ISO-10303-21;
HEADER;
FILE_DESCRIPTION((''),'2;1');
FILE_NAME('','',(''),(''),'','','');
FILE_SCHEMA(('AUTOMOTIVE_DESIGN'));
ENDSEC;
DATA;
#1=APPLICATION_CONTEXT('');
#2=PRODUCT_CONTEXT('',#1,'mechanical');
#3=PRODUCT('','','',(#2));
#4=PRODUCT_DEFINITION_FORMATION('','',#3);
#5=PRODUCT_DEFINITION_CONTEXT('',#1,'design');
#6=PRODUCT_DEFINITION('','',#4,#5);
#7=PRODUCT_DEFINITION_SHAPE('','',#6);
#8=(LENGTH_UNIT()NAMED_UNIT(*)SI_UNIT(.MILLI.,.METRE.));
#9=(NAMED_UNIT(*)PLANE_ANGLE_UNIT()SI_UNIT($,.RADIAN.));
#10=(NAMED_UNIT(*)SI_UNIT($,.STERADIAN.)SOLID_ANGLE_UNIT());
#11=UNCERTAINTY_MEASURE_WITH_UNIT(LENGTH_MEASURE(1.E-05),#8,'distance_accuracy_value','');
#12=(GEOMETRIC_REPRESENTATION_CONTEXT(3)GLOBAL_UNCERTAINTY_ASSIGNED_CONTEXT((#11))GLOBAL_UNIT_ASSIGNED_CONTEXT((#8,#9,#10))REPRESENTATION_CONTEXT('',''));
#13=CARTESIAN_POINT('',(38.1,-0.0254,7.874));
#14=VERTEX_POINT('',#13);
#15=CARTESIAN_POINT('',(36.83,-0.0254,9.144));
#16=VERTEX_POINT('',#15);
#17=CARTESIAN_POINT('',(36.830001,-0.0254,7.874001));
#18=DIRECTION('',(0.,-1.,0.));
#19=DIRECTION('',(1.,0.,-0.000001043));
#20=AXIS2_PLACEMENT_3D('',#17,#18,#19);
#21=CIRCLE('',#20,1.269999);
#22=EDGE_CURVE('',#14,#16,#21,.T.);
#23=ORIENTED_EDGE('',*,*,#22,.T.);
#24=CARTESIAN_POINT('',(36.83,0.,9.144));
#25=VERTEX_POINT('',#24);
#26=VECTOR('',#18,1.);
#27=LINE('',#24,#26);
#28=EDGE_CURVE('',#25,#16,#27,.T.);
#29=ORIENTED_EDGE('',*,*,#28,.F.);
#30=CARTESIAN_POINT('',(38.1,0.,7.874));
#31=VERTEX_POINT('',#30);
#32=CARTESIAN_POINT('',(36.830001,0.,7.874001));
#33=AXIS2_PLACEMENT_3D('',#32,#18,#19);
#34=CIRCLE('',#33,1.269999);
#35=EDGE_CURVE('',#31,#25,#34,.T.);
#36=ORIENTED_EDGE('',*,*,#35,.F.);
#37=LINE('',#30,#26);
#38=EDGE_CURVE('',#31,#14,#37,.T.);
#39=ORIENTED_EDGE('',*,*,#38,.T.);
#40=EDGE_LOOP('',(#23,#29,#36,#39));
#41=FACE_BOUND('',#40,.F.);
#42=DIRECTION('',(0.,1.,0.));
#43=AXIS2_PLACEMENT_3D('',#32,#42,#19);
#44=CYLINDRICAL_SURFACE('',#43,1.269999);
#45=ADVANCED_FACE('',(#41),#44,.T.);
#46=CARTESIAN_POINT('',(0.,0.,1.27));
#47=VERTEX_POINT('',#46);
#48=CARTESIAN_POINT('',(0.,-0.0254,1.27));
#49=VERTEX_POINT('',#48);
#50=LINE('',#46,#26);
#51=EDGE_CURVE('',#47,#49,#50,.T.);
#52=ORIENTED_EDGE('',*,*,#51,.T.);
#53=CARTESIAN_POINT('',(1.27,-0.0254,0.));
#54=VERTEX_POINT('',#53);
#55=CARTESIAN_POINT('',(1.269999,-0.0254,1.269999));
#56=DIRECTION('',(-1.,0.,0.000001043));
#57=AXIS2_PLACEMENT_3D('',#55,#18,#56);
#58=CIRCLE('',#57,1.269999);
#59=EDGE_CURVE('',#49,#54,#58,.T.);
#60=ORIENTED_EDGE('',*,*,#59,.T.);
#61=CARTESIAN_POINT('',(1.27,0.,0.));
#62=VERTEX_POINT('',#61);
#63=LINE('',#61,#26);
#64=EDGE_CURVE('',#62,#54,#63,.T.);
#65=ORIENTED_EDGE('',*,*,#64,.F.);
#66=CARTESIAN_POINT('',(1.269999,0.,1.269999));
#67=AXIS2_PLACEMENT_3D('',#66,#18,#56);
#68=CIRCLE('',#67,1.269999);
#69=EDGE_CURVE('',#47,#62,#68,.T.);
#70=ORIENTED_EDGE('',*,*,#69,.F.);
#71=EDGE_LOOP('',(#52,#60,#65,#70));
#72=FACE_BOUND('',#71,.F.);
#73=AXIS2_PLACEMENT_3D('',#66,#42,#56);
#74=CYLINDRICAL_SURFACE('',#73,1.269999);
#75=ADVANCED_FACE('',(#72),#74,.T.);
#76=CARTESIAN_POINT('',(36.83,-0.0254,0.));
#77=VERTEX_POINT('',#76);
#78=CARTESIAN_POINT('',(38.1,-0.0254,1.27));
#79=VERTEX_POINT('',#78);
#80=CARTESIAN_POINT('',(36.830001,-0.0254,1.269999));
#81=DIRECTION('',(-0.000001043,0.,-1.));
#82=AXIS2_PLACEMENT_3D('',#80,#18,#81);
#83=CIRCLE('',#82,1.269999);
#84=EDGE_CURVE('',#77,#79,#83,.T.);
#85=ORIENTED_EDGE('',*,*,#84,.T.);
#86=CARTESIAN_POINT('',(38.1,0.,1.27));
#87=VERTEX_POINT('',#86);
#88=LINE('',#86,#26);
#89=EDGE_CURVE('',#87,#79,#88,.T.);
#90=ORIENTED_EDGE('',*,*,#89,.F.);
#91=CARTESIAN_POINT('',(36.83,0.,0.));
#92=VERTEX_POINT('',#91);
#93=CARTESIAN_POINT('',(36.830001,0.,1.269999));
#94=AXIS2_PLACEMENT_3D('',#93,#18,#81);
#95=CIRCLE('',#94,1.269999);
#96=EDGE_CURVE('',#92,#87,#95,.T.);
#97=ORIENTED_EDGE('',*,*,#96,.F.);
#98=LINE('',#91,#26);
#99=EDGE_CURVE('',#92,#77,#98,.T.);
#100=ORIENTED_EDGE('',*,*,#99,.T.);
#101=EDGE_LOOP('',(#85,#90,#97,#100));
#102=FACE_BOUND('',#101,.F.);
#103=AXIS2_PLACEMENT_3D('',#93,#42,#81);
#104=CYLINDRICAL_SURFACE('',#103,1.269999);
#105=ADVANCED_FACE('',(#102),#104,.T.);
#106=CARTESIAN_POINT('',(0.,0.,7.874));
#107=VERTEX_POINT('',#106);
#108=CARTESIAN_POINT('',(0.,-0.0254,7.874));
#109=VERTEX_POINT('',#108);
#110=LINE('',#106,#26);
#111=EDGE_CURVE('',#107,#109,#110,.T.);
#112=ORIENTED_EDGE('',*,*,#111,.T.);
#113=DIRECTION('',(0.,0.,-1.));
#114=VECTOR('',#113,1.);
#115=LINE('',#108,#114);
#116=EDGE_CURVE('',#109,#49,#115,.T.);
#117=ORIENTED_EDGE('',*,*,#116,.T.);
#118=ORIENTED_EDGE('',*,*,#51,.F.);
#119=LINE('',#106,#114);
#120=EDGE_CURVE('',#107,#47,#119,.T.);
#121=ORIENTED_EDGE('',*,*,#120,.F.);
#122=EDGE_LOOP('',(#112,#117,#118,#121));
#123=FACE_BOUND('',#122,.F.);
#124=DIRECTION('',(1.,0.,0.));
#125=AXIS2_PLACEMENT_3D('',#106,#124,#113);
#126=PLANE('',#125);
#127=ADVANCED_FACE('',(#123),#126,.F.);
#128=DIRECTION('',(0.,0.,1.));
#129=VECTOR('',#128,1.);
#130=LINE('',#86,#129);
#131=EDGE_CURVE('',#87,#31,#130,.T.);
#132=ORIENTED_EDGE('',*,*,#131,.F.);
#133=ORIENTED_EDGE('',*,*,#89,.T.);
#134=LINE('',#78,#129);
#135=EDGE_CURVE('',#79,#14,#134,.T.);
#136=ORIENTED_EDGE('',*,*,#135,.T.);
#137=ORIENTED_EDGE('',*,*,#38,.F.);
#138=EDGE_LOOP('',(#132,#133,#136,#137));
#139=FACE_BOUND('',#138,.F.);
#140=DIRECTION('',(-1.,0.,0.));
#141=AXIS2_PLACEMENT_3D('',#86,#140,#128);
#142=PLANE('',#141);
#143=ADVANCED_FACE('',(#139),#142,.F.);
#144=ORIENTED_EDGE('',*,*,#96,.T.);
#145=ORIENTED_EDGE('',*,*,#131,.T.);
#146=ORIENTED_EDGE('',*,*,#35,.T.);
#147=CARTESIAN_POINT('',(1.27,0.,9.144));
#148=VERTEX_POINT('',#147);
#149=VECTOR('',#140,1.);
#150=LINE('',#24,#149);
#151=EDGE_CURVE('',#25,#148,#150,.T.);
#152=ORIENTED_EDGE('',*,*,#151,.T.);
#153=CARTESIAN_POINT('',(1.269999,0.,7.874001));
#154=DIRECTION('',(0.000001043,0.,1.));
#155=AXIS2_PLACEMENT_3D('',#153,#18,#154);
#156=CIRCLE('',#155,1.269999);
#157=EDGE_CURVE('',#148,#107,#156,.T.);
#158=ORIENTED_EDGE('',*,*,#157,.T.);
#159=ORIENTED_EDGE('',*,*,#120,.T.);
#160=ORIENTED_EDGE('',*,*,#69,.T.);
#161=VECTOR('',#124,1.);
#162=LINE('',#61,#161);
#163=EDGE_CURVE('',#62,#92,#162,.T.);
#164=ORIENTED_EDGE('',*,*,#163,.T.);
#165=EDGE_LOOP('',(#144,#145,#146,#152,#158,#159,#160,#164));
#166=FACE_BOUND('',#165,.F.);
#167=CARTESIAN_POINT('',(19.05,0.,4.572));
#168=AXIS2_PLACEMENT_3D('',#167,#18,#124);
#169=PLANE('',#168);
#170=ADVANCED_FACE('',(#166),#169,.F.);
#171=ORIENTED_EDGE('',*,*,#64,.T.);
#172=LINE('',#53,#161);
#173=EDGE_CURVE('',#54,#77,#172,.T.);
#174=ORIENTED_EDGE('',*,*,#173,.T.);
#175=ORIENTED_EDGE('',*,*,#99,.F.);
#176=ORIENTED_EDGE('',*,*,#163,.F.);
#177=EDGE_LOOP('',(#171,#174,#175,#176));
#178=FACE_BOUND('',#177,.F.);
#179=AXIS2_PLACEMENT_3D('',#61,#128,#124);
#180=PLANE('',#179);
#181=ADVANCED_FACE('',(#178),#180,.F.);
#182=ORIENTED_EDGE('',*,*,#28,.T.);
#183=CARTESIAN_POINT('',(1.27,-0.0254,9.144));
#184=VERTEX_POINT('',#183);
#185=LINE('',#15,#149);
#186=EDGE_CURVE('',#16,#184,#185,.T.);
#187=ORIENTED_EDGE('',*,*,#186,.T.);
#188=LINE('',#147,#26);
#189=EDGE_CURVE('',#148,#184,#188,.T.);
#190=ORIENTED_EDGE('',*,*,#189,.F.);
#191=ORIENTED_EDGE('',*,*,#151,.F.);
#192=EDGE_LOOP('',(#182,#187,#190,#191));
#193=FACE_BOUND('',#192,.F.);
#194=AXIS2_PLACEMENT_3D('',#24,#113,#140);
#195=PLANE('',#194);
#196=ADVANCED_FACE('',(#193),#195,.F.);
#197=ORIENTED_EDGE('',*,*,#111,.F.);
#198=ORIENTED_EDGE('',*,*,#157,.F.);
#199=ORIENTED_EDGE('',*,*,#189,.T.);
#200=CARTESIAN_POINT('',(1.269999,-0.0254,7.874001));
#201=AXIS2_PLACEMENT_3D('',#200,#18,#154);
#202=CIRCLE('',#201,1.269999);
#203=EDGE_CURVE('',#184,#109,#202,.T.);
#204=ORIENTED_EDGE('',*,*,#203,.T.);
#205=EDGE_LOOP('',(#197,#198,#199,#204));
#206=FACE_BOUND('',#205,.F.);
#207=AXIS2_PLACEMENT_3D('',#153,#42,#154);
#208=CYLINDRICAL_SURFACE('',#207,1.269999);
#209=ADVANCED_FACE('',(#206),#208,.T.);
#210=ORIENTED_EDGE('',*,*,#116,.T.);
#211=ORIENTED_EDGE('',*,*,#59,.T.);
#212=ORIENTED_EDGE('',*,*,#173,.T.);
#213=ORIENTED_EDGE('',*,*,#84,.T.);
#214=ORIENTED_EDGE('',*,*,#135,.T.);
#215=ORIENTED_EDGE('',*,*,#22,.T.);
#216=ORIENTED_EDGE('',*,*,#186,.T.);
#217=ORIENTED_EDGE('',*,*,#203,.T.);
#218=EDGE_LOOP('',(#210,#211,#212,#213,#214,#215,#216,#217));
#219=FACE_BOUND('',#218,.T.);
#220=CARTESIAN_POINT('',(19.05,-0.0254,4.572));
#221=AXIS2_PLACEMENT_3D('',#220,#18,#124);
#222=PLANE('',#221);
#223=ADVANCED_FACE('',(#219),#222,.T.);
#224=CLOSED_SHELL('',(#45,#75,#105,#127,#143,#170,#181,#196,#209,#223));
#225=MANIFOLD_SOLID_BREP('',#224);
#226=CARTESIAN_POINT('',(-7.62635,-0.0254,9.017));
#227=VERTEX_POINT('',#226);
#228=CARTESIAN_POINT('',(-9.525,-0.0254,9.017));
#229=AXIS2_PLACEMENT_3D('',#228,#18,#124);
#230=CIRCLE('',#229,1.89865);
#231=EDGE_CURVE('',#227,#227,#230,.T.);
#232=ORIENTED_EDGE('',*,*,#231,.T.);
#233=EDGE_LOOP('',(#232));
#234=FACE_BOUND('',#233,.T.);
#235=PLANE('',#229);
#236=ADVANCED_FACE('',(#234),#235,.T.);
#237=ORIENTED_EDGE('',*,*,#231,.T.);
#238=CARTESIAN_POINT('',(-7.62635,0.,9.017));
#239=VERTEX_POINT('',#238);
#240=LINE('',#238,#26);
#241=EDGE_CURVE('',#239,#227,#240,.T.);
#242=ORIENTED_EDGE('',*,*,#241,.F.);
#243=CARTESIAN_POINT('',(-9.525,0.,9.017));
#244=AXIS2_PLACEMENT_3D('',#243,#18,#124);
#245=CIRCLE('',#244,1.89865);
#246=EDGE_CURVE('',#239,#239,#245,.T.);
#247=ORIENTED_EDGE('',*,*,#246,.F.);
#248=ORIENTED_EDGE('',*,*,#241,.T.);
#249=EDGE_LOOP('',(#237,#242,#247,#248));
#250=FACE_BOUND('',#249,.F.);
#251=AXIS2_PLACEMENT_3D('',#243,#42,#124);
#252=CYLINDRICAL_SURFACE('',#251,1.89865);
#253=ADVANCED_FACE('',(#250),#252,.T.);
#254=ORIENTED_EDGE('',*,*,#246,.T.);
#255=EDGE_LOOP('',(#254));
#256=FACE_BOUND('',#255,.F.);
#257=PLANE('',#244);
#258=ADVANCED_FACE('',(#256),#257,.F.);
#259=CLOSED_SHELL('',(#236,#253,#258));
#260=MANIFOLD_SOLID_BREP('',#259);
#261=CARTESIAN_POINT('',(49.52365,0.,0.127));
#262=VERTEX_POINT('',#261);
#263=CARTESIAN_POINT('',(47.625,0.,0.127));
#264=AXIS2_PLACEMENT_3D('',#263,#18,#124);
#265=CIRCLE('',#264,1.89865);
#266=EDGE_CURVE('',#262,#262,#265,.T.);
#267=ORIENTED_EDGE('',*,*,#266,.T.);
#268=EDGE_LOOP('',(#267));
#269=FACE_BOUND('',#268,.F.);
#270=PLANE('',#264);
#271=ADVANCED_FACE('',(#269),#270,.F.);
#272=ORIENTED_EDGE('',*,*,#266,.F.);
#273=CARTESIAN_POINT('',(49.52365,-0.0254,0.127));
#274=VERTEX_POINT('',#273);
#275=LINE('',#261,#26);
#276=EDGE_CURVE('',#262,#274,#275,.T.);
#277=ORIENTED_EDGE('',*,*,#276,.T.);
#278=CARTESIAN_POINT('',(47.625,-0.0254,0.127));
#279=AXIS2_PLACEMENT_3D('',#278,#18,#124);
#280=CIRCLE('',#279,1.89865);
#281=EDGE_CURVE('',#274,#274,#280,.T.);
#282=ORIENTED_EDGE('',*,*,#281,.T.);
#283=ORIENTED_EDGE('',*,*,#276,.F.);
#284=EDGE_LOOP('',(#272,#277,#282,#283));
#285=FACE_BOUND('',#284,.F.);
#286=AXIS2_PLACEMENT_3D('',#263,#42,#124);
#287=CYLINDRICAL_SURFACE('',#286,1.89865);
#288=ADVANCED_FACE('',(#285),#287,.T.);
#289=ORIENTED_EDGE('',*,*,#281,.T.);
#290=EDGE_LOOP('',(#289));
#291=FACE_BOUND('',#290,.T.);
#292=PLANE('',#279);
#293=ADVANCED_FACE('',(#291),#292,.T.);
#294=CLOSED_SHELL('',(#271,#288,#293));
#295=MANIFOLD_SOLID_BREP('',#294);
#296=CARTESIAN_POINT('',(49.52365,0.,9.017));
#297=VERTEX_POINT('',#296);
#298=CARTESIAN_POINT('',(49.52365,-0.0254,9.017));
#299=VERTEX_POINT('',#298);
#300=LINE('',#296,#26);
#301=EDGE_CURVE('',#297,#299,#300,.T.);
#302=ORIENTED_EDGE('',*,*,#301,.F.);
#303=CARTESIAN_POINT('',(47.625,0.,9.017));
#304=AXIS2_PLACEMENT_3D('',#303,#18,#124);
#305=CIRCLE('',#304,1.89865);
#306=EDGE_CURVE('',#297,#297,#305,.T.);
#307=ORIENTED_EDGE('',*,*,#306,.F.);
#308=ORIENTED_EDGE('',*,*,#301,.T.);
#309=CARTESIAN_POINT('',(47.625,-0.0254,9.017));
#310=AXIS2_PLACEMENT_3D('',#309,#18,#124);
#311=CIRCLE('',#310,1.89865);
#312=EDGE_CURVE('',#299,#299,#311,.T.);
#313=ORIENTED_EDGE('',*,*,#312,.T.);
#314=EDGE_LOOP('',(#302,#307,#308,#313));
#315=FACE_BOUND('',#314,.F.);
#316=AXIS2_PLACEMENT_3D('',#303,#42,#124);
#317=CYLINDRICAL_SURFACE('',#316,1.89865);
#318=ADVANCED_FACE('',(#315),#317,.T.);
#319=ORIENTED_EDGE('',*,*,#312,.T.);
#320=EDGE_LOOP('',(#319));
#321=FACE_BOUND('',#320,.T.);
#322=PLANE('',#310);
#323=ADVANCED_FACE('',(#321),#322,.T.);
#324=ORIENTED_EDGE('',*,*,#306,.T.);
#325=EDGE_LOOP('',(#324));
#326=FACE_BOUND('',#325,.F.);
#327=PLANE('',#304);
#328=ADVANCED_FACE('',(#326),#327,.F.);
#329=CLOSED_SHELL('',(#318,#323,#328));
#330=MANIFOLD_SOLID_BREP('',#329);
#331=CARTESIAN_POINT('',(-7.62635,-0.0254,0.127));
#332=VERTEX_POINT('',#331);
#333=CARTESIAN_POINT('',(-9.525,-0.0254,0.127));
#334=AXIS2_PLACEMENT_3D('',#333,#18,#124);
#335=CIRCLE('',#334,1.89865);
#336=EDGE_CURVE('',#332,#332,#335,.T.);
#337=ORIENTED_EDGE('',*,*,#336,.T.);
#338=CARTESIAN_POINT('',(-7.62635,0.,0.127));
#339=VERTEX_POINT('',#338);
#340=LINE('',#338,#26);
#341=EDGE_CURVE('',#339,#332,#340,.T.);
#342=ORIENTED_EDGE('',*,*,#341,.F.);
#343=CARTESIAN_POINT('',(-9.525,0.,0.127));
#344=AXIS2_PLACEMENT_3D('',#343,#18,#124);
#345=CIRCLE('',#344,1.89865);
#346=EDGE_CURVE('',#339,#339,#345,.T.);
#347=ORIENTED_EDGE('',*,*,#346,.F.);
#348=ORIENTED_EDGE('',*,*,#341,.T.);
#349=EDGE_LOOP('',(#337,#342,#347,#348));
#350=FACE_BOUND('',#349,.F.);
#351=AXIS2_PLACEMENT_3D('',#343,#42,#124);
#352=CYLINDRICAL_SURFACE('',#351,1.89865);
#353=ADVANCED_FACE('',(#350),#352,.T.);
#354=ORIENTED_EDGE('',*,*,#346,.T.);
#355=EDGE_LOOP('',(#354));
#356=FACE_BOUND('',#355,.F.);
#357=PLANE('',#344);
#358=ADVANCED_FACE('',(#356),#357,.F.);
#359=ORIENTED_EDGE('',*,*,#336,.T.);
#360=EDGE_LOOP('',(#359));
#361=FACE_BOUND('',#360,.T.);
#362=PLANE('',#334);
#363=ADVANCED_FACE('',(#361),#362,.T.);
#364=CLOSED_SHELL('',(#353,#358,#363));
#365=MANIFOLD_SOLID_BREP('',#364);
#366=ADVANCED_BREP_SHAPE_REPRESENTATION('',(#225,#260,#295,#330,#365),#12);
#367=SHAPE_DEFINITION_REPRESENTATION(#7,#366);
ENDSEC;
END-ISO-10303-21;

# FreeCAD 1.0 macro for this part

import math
import FreeCAD as App
import Part
import Sketcher
Q = App.Units.Quantity

doc = App.newDocument("Part")
params = doc.addObject("Spreadsheet::Sheet", "Params")
for row, (alias, value) in enumerate([
    ("sketch1_radius", "0.0499999 in"),
    ("sketch1_width", "1.4 in"),
    ("sketch1_height", "0.26 in"),
    ("pad1_length", "0.001 in"),
], start=1):
    params.set(f"A{row}", alias)
    params.set(f"B{row}", "=" + value)
    params.setAlias(f"B{row}", alias)

body = doc.addObject("PartDesign::Body", "Body")
body.AllowCompound = True

sketch1 = body.newObject("Sketcher::SketchObject", "Sketch")
sketch1.AttachmentSupport = (doc.getObject("XZ_Plane"), [""])
sketch1.MapMode = "FlatFace"
sketch1.addGeometry(Part.ArcOfCircle(Part.Circle(App.Vector(1.3, 1.3, 0), App.Vector(0, 0, 1), 1.3), math.radians(180), math.radians(270)), False)
sketch1.addGeometry(Part.LineSegment(App.Vector(1.3, 0, 0), App.Vector(36.8, 0, 0)), False)
sketch1.addGeometry(Part.ArcOfCircle(Part.Circle(App.Vector(36.8, 1.3, 0), App.Vector(0, 0, 1), 1.3), math.radians(-90), math.radians(0)), False)
sketch1.addGeometry(Part.LineSegment(App.Vector(38.1, 1.3, 0), App.Vector(38.1, 7.9, 0)), False)
sketch1.addGeometry(Part.ArcOfCircle(Part.Circle(App.Vector(36.8, 7.9, 0), App.Vector(0, 0, 1), 1.3), math.radians(0), math.radians(90)), False)
sketch1.addGeometry(Part.LineSegment(App.Vector(36.8, 9.1, 0), App.Vector(1.3, 9.1, 0)), False)
sketch1.addGeometry(Part.ArcOfCircle(Part.Circle(App.Vector(1.3, 7.9, 0), App.Vector(0, 0, 1), 1.3), math.radians(90), math.radians(180)), False)
sketch1.addGeometry(Part.LineSegment(App.Vector(0, 7.9, 0), App.Vector(0, 1.3, 0)), False)
sketch1.addGeometry(Part.Circle(App.Vector(-9.5, 9, 0), App.Vector(0, 0, 1), 1.9), False)
sketch1.addGeometry(Part.Circle(App.Vector(-9.5, 0.1, 0), App.Vector(0, 0, 1), 1.9), False)
sketch1.addGeometry(Part.Circle(App.Vector(47.6, 9, 0), App.Vector(0, 0, 1), 1.9), False)
sketch1.addGeometry(Part.Circle(App.Vector(47.6, 0.1, 0), App.Vector(0, 0, 1), 1.9), False)
sketch1.addConstraint(Sketcher.Constraint("Tangent", 0, 2, 1, 1))
sketch1.addConstraint(Sketcher.Constraint("Tangent", 1, 2, 2, 1))
sketch1.addConstraint(Sketcher.Constraint("Tangent", 2, 2, 3, 1))
sketch1.addConstraint(Sketcher.Constraint("Tangent", 3, 2, 4, 1))
sketch1.addConstraint(Sketcher.Constraint("Tangent", 4, 2, 5, 1))
sketch1.addConstraint(Sketcher.Constraint("Tangent", 5, 2, 6, 1))
sketch1.addConstraint(Sketcher.Constraint("Tangent", 6, 2, 7, 1))
sketch1.addConstraint(Sketcher.Constraint("Tangent", 7, 2, 0, 1))
sketch1.addConstraint(Sketcher.Constraint("Horizontal", 1))
sketch1.addConstraint(Sketcher.Constraint("Vertical", 3))
sketch1.addConstraint(Sketcher.Constraint("Horizontal", 5))
sketch1.addConstraint(Sketcher.Constraint("Vertical", 7))
sketch1.addConstraint(Sketcher.Constraint("Equal", 0, 2))
sketch1.addConstraint(Sketcher.Constraint("Equal", 2, 4))
sketch1.addConstraint(Sketcher.Constraint("Equal", 4, 6))
sketch1.addConstraint(Sketcher.Constraint("Equal", 8, 9))
sketch1.addConstraint(Sketcher.Constraint("Equal", 9, 10))
sketch1.addConstraint(Sketcher.Constraint("Equal", 10, 11))
sketch1.addConstraint(Sketcher.Constraint("PointOnObject", 0, 2, -1))
sketch1.addConstraint(Sketcher.Constraint("PointOnObject", 6, 2, -2))
sketch1.addConstraint(Sketcher.Constraint("Horizontal", 8, 3, 10, 3))
sketch1.addConstraint(Sketcher.Constraint("Horizontal", 9, 3, 11, 3))
sketch1.addConstraint(Sketcher.Constraint("Vertical", 8, 3, 9, 3))
sketch1.addConstraint(Sketcher.Constraint("Vertical", 10, 3, 11, 3))
sketch1.addConstraint(Sketcher.Constraint("Radius", 0, Q("0.0499999 in")))
sketch1.addConstraint(Sketcher.Constraint("DistanceX", 1, 1, 1, 2, Q("1.4 in")))
sketch1.addConstraint(Sketcher.Constraint("Diameter", 8, Q("0.1495 in")))
sketch1.addConstraint(Sketcher.Constraint("DistanceY", 3, 1, 3, 2, Q("0.26 in")))
sketch1.addConstraint(Sketcher.Constraint("DistanceY", 9, 3, 8, 3, Q("0.35 in")))
sketch1.addConstraint(Sketcher.Constraint("DistanceX", 8, 3, 10, 3, Q("2.25 in")))
sketch1.addConstraint(Sketcher.Constraint("DistanceX", 8, 3, -1, 1, Q("0.375 in")))
sketch1.addConstraint(Sketcher.Constraint("DistanceY", -1, 1, 8, 3, Q("0.355 in")))
sketch1.setExpression("Constraints[24]", "Params.sketch1_radius")
sketch1.setExpression("Constraints[25]", "Params.sketch1_width")
sketch1.setExpression("Constraints[27]", "Params.sketch1_height")
pad1 = body.newObject("PartDesign::Pad", "Pad")
pad1.Profile = sketch1
pad1.setExpression("Length", "Params.pad1_length")

doc.recompute()
